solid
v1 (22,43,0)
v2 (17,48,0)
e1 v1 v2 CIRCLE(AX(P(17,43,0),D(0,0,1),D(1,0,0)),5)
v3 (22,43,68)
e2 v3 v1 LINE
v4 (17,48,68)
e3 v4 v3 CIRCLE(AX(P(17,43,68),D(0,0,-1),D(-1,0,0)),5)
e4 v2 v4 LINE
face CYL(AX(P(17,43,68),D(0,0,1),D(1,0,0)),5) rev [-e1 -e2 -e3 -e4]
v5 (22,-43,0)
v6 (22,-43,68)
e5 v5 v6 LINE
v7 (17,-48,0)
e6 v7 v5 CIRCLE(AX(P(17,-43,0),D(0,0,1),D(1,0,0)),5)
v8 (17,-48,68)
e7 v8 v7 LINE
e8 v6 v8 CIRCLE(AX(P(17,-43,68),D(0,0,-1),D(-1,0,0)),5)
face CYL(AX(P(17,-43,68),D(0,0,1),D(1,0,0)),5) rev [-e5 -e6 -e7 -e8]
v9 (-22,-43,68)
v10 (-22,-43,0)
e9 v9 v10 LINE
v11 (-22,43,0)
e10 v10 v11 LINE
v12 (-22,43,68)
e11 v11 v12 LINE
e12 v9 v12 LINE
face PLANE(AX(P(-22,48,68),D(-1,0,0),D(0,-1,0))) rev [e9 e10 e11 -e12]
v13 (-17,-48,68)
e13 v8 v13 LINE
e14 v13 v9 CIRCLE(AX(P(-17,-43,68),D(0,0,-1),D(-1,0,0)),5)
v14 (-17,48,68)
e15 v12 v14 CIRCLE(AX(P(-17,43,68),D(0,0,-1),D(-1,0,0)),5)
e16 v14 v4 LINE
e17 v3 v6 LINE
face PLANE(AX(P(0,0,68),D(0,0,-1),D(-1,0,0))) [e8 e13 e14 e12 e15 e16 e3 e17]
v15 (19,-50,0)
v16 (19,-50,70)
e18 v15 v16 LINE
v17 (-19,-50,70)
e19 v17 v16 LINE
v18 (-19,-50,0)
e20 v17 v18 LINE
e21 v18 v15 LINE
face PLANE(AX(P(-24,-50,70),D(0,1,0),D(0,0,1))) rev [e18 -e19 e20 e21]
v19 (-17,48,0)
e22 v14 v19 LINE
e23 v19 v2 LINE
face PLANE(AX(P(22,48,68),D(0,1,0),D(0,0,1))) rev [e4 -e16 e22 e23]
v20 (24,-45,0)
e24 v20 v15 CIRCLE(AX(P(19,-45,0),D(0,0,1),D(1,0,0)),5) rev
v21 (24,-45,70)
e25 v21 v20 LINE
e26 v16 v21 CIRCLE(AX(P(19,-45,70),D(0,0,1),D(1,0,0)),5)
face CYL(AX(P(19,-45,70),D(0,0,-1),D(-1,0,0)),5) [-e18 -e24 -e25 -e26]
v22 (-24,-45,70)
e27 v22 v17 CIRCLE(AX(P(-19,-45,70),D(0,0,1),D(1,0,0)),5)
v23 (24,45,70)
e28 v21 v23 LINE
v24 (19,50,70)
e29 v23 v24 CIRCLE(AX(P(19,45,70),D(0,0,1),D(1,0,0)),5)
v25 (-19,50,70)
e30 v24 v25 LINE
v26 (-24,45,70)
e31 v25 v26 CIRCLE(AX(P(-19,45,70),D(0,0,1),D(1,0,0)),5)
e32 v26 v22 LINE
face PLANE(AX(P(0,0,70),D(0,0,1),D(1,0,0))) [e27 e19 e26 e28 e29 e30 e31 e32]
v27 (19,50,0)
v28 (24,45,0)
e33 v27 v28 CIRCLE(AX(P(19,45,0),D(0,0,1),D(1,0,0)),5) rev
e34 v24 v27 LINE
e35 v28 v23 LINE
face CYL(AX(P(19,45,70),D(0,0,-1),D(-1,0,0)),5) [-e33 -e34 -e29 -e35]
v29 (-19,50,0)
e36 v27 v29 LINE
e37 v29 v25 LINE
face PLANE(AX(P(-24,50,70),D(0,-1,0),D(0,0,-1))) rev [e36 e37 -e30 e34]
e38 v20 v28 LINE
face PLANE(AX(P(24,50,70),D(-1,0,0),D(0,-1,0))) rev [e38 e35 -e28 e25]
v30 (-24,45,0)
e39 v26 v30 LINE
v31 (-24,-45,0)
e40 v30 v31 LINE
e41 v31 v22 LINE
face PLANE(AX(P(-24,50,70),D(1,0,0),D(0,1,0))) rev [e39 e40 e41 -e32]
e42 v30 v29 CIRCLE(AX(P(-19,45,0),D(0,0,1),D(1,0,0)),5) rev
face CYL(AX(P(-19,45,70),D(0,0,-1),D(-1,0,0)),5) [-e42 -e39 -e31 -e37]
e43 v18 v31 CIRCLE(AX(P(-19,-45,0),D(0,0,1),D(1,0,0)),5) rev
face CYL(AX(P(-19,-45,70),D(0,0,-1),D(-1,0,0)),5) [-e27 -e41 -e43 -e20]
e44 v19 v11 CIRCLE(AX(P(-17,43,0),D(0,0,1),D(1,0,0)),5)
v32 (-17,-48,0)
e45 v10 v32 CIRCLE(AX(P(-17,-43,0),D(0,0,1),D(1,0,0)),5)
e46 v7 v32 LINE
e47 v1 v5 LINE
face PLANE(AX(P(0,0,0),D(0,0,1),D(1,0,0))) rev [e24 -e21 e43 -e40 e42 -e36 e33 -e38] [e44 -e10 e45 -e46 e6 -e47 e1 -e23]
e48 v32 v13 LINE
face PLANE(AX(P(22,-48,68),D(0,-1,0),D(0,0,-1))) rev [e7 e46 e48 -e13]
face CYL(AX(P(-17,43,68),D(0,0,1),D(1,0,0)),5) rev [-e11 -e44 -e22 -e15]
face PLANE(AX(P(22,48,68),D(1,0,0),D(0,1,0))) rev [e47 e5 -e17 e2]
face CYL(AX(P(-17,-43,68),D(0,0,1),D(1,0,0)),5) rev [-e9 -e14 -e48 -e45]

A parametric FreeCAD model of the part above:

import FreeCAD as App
import Part
import Sketcher

V = App.Vector


def edges_at(feature, points):
    """Names of the edges that pass closest to the given points."""
    edges = feature.Shape.Edges
    near = lambda p: min(range(len(edges)), key=lambda i: edges[i].distToShape(Part.Vertex(*p))[0])
    return sorted({f"Edge{near(p) + 1}" for p in points})


def add_polygon(sketch, points):
    """Adds a closed chain of lines whose ends are joined by coincident constraints."""
    first, n = sketch.GeometryCount, len(points)
    for a, b in zip(points, points[1:] + points[:1]):
        sketch.addGeometry(Part.LineSegment(App.Vector(*a, 0), App.Vector(*b, 0)), False)
    for i in range(n):
        sketch.addConstraint(Sketcher.Constraint("Coincident", first + i, 2, first + (i + 1) % n, 1))

doc = App.newDocument("Part")
body = doc.addObject("PartDesign::Body", "Body")

sketch1 = body.newObject("Sketcher::SketchObject", "Sketch")
sketch1.AttachmentSupport = (doc.getObject("XY_Plane"), [""])
sketch1.MapMode = "FlatFace"
add_polygon(sketch1, [(-24, 50), (-24, -50), (24, -50), (24, 50)])
sketch1.addConstraint(Sketcher.Constraint("Vertical", 0))
sketch1.addConstraint(Sketcher.Constraint("Horizontal", 1))
sketch1.addConstraint(Sketcher.Constraint("Vertical", 2))
sketch1.addConstraint(Sketcher.Constraint("Horizontal", 3))
sketch1.addConstraint(Sketcher.Constraint("Symmetric", 0, 2, 2, 2, -1, 1))
sketch1.addConstraint(Sketcher.Constraint("DistanceX", 1, 1, 1, 2, 48.0))
sketch1.addConstraint(Sketcher.Constraint("DistanceY", 0, 2, 0, 1, 100.0))
pad1 = body.newObject("PartDesign::Pad", "Pad")
pad1.Profile = sketch1
pad1.Length = 70

sketch2 = body.newObject("Sketcher::SketchObject", "Sketch001")
sketch2.AttachmentSupport = (doc.getObject("XY_Plane"), [""])
sketch2.MapMode = "FlatFace"
add_polygon(sketch2, [(22, 48), (22, -48), (-22, -48), (-22, 48)])
sketch2.addConstraint(Sketcher.Constraint("Vertical", 0))
sketch2.addConstraint(Sketcher.Constraint("Horizontal", 1))
sketch2.addConstraint(Sketcher.Constraint("Vertical", 2))
sketch2.addConstraint(Sketcher.Constraint("Horizontal", 3))
sketch2.addConstraint(Sketcher.Constraint("Symmetric", 0, 2, 2, 2, -1, 1))
sketch2.addConstraint(Sketcher.Constraint("DistanceX", 1, 2, 1, 1, 44.0))
sketch2.addConstraint(Sketcher.Constraint("DistanceY", 0, 2, 0, 1, 96.0))
pocket1 = body.newObject("PartDesign::Pocket", "Pocket")
pocket1.Profile = sketch2
pocket1.Length = 68
pocket1.Reversed = True
doc.recompute()

fillet = body.newObject("PartDesign::Fillet", "Fillet")
fillet.Base = (pocket1, edges_at(pocket1, [
    (-22, 48, 34),
    (-22, -48, 34),
    (22, -48, 34),
    (22, 48, 34),
    (24, -50, 35),
    (-24, -50, 35),
    (-24, 50, 35),
    (24, 50, 35),
]))
fillet.Radius = 5

doc.recompute()
